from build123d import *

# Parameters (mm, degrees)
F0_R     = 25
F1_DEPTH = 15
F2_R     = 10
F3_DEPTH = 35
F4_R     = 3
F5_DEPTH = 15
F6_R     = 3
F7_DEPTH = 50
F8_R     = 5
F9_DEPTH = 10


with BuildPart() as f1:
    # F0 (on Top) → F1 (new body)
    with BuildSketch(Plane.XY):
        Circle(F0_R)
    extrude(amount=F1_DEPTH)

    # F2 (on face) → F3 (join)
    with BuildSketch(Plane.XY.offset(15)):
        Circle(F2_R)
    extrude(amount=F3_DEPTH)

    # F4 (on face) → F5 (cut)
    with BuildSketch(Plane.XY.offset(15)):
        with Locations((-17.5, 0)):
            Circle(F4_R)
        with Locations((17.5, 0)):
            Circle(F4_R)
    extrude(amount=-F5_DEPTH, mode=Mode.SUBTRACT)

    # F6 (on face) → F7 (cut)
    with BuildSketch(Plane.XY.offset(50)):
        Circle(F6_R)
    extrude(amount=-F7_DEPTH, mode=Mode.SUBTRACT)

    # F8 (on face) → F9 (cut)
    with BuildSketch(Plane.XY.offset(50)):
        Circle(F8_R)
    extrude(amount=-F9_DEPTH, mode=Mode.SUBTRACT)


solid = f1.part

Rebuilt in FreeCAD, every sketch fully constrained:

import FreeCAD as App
import Part
import Sketcher

V = App.Vector

doc = App.newDocument("Part")
body = doc.addObject("PartDesign::Body", "Body")

# Sketch on XY plane
sketch1 = body.newObject("Sketcher::SketchObject", "Sketch")
sketch1.AttachmentSupport = (doc.getObject("XY_Plane"), [""])
sketch1.MapMode = "FlatFace"
sketch1.addGeometry(Part.Circle(V(0, 0, 0), V(0, 0, 1), 25), False)
sketch1.addConstraint(Sketcher.Constraint("Coincident", 0, 3, -1, 1))
sketch1.addConstraint(Sketcher.Constraint("Diameter", 0, 50.0))
pad1 = body.newObject("PartDesign::Pad", "Pad")
pad1.Profile = sketch1
pad1.Length = 15

# Sketch on XY plane
sketch2 = body.newObject("Sketcher::SketchObject", "Sketch001")
sketch2.AttachmentSupport = (doc.getObject("XY_Plane"), [""])
sketch2.MapMode = "FlatFace"
sketch2.AttachmentOffset = App.Placement(V(0, 0, 15), App.Rotation())
sketch2.addGeometry(Part.Circle(V(0, 0, 0), V(0, 0, 1), 10), False)
sketch2.addConstraint(Sketcher.Constraint("Coincident", 0, 3, -1, 1))
sketch2.addConstraint(Sketcher.Constraint("Diameter", 0, 20.0))
pad2 = body.newObject("PartDesign::Pad", "Pad001")
pad2.Profile = sketch2
pad2.Length = 35

# Sketch on XY plane
sketch3 = body.newObject("Sketcher::SketchObject", "Sketch002")
sketch3.AttachmentSupport = (doc.getObject("XY_Plane"), [""])
sketch3.MapMode = "FlatFace"
sketch3.AttachmentOffset = App.Placement(V(0, 0, 15), App.Rotation())
sketch3.addGeometry(Part.Circle(V(-17.5, 0, 0), V(0, 0, 1), 3), False)
sketch3.addGeometry(Part.Circle(V(17.5, 0, 0), V(0, 0, 1), 3), False)
sketch3.addConstraint(Sketcher.Constraint("Equal", 0, 1))
sketch3.addConstraint(Sketcher.Constraint("Symmetric", 0, 3, 1, 3, -1, 1))
sketch3.addConstraint(Sketcher.Constraint("PointOnObject", 0, 3, -1))
sketch3.addConstraint(Sketcher.Constraint("Diameter", 0, 6.0))
sketch3.addConstraint(Sketcher.Constraint("DistanceX", 0, 3, 1, 3, 35.0))
pocket1 = body.newObject("PartDesign::Pocket", "Pocket")
pocket1.Profile = sketch3
pocket1.Length = 15

# Sketch on XY plane
sketch4 = body.newObject("Sketcher::SketchObject", "Sketch003")
sketch4.AttachmentSupport = (doc.getObject("XY_Plane"), [""])
sketch4.MapMode = "FlatFace"
sketch4.AttachmentOffset = App.Placement(V(0, 0, 50), App.Rotation())
sketch4.addGeometry(Part.Circle(V(0, 0, 0), V(0, 0, 1), 3), False)
sketch4.addConstraint(Sketcher.Constraint("Coincident", 0, 3, -1, 1))
sketch4.addConstraint(Sketcher.Constraint("Diameter", 0, 6.0))
pocket2 = body.newObject("PartDesign::Pocket", "Pocket001")
pocket2.Profile = sketch4
pocket2.Length = 50

# Sketch on XY plane
sketch5 = body.newObject("Sketcher::SketchObject", "Sketch004")
sketch5.AttachmentSupport = (doc.getObject("XY_Plane"), [""])
sketch5.MapMode = "FlatFace"
sketch5.AttachmentOffset = App.Placement(V(0, 0, 50), App.Rotation())
sketch5.addGeometry(Part.Circle(V(0, 0, 0), V(0, 0, 1), 5), False)
sketch5.addConstraint(Sketcher.Constraint("Coincident", 0, 3, -1, 1))
sketch5.addConstraint(Sketcher.Constraint("Diameter", 0, 10.0))
pocket3 = body.newObject("PartDesign::Pocket", "Pocket002")
pocket3.Profile = sketch5
pocket3.Length = 10

doc.recompute()
